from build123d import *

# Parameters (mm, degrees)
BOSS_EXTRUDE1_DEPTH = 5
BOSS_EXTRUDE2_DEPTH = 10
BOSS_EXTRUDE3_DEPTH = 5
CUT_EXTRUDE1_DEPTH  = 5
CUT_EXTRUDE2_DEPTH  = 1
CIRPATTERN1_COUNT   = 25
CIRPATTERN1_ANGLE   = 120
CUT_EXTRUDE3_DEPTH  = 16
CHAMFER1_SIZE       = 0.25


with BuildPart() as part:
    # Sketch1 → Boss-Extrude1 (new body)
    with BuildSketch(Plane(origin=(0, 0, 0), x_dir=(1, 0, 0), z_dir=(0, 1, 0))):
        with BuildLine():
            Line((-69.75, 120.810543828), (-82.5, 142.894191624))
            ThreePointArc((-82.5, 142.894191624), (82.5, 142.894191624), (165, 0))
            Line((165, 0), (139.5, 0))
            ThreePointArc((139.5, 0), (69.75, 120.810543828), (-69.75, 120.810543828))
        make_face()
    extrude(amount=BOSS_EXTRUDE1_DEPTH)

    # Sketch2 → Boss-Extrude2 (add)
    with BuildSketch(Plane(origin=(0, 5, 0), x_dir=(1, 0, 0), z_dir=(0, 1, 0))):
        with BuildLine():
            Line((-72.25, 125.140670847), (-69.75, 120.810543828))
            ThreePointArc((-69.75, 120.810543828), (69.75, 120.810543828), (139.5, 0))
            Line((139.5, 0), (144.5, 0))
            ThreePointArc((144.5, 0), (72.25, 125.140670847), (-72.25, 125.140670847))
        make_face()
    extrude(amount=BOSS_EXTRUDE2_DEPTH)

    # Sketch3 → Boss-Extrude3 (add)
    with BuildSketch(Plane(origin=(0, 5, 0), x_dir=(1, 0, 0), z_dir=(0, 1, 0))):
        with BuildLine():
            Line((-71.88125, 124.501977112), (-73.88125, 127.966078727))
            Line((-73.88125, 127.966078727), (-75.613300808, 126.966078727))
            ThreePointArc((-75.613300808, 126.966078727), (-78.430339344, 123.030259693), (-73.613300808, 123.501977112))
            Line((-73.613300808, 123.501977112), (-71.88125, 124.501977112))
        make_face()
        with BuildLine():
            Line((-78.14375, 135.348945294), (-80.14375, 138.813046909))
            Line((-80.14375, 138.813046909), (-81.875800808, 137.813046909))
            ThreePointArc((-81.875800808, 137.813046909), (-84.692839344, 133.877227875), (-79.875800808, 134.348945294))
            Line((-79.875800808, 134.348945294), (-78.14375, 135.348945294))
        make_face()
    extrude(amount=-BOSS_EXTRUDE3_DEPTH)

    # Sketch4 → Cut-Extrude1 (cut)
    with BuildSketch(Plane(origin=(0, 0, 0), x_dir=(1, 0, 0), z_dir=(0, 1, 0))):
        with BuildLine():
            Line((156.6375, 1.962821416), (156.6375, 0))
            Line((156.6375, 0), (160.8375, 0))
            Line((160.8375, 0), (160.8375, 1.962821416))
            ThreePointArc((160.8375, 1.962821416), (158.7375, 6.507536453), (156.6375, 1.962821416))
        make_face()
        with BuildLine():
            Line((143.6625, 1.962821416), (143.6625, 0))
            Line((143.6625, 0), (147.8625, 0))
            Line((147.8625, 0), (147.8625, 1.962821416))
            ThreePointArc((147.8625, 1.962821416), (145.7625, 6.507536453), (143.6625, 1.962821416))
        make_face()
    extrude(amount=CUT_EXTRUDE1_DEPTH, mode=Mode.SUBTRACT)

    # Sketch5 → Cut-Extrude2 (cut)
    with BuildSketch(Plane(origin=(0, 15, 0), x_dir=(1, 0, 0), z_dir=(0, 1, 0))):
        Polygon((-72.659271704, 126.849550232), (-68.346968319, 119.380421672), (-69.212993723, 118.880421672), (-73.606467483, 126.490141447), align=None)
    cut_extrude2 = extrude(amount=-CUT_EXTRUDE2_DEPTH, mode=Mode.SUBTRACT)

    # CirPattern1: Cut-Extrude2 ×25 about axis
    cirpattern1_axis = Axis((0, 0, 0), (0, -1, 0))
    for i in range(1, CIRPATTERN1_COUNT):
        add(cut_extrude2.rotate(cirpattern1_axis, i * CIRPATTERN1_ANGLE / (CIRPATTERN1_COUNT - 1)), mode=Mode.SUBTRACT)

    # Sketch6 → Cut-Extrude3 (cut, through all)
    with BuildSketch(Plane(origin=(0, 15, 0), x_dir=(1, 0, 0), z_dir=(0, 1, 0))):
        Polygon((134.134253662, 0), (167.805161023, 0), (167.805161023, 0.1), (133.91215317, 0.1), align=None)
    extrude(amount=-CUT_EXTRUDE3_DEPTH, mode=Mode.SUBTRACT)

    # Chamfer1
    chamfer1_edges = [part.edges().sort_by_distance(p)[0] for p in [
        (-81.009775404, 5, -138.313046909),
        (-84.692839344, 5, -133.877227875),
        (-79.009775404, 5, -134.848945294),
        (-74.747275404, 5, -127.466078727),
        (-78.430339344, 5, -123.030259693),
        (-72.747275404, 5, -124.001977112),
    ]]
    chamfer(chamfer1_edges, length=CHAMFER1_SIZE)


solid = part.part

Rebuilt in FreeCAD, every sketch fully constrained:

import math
import FreeCAD as App
import Part
import Sketcher
Q = App.Units.Quantity


def edges_at(feature, points):
    """Names of the edges that pass closest to the given points."""
    edges = feature.Shape.Edges
    near = lambda p: min(range(len(edges)), key=lambda i: edges[i].distToShape(Part.Vertex(*p))[0])
    return sorted({f"Edge{near(p) + 1}" for p in points})


def add_polygon(sketch, points):
    """Adds a closed chain of lines whose ends are joined by coincident constraints."""
    first, n = sketch.GeometryCount, len(points)
    for a, b in zip(points, points[1:] + points[:1]):
        sketch.addGeometry(Part.LineSegment(App.Vector(*a, 0), App.Vector(*b, 0)), False)
    for i in range(n):
        sketch.addConstraint(Sketcher.Constraint("Coincident", first + i, 2, first + (i + 1) % n, 1))

doc = App.newDocument("Part")
body = doc.addObject("PartDesign::Body", "Body")

sketch1 = body.newObject("Sketcher::SketchObject", "Sketch")
sketch1.AttachmentSupport = (doc.getObject("XZ_Plane"), [""])
sketch1.MapMode = "FlatFace"
sketch1.addGeometry(Part.LineSegment(App.Vector(-82, -143, 0), App.Vector(-70, -121, 0)), False)
sketch1.addGeometry(Part.ArcOfCircle(Part.Circle(App.Vector(0, 0, 0), App.Vector(0, 0, 1), 140), math.radians(-120), math.radians(0)), False)
sketch1.addGeometry(Part.LineSegment(App.Vector(140, 0, 0), App.Vector(165, 0, 0)), False)
sketch1.addGeometry(Part.ArcOfCircle(Part.Circle(App.Vector(0, 0, 0), App.Vector(0, 0, 1), 165), math.radians(-120), math.radians(0)), False)
sketch1.addConstraint(Sketcher.Constraint("Coincident", 0, 2, 1, 1))
sketch1.addConstraint(Sketcher.Constraint("Coincident", 1, 2, 2, 1))
sketch1.addConstraint(Sketcher.Constraint("Coincident", 2, 2, 3, 2))
sketch1.addConstraint(Sketcher.Constraint("Coincident", 3, 1, 0, 1))
sketch1.addConstraint(Sketcher.Constraint("Horizontal", 2))
sketch1.addConstraint(Sketcher.Constraint("Coincident", 1, 3, -1, 1))
sketch1.addConstraint(Sketcher.Constraint("Coincident", 3, 3, -1, 1))
sketch1.addConstraint(Sketcher.Constraint("PointOnObject", 1, 2, -1))
sketch1.addConstraint(Sketcher.Constraint("Radius", 3, Q("165 mm")))
sketch1.addConstraint(Sketcher.Constraint("Radius", 1, Q("139.5 mm")))
sketch1.addConstraint(Sketcher.Constraint("Angle", 0, Q("60 deg")))
sketch1.addConstraint(Sketcher.Constraint("DistanceX", 3, 1, 1, 2, Q("222 mm")))
pad1 = body.newObject("PartDesign::Pad", "Pad")
pad1.Profile = sketch1
pad1.Length = 5
pad1.Reversed = True

sketch2 = body.newObject("Sketcher::SketchObject", "Sketch001")
sketch2.AttachmentSupport = (doc.getObject("XZ_Plane"), [""])
sketch2.MapMode = "FlatFace"
sketch2.AttachmentOffset = App.Placement(App.Vector(0, 0, -5), App.Rotation())
sketch2.addGeometry(Part.LineSegment(App.Vector(-72, -125, 0), App.Vector(-70, -121, 0)), False)
sketch2.addGeometry(Part.ArcOfCircle(Part.Circle(App.Vector(0, 0, 0), App.Vector(0, 0, 1), 140), math.radians(-120), math.radians(0)), False)
sketch2.addGeometry(Part.LineSegment(App.Vector(140, 0, 0), App.Vector(144, 0, 0)), False)
sketch2.addGeometry(Part.ArcOfCircle(Part.Circle(App.Vector(0, 0, 0), App.Vector(0, 0, 1), 144), math.radians(-120), math.radians(0)), False)
sketch2.addConstraint(Sketcher.Constraint("Coincident", 0, 2, 1, 1))
sketch2.addConstraint(Sketcher.Constraint("Coincident", 1, 2, 2, 1))
sketch2.addConstraint(Sketcher.Constraint("Coincident", 2, 2, 3, 2))
sketch2.addConstraint(Sketcher.Constraint("Coincident", 3, 1, 0, 1))
sketch2.addConstraint(Sketcher.Constraint("Horizontal", 2))
sketch2.addConstraint(Sketcher.Constraint("Coincident", 1, 3, -1, 1))
sketch2.addConstraint(Sketcher.Constraint("Coincident", 3, 3, -1, 1))
sketch2.addConstraint(Sketcher.Constraint("PointOnObject", 1, 2, -1))
sketch2.addConstraint(Sketcher.Constraint("Radius", 1, Q("139.5 mm")))
sketch2.addConstraint(Sketcher.Constraint("Radius", 3, Q("144.5 mm")))
sketch2.addConstraint(Sketcher.Constraint("Angle", 0, Q("60 deg")))
sketch2.addConstraint(Sketcher.Constraint("DistanceX", 0, 2, -1, 1, Q("69.75 mm")))
pad2 = body.newObject("PartDesign::Pad", "Pad001")
pad2.Profile = sketch2
pad2.Length = 10
pad2.Reversed = True

sketch3 = body.newObject("Sketcher::SketchObject", "Sketch002")
sketch3.AttachmentSupport = (doc.getObject("XZ_Plane"), [""])
sketch3.MapMode = "FlatFace"
sketch3.AttachmentOffset = App.Placement(App.Vector(0, 0, -5), App.Rotation())
sketch3.addGeometry(Part.LineSegment(App.Vector(-71.9, -124.5, 0), App.Vector(-73.9, -128, 0)), False)
sketch3.addGeometry(Part.LineSegment(App.Vector(-73.9, -128, 0), App.Vector(-75.6, -127, 0)), False)
sketch3.addGeometry(Part.ArcOfCircle(Part.Circle(App.Vector(-76.1, -124.4, 0), App.Vector(0, 0, 1), 2.7), math.radians(19), math.radians(281)), False)
sketch3.addGeometry(Part.LineSegment(App.Vector(-73.6, -123.5, 0), App.Vector(-71.9, -124.5, 0)), False)
sketch3.addGeometry(Part.LineSegment(App.Vector(-78.1, -135.3, 0), App.Vector(-80.1, -138.8, 0)), False)
sketch3.addGeometry(Part.LineSegment(App.Vector(-80.1, -138.8, 0), App.Vector(-81.9, -137.8, 0)), False)
sketch3.addGeometry(Part.ArcOfCircle(Part.Circle(App.Vector(-82.4, -135.2, 0), App.Vector(0, 0, 1), 2.7), math.radians(19), math.radians(281)), False)
sketch3.addGeometry(Part.LineSegment(App.Vector(-79.9, -134.3, 0), App.Vector(-78.1, -135.3, 0)), False)
sketch3.addConstraint(Sketcher.Constraint("Coincident", 0, 2, 1, 1))
sketch3.addConstraint(Sketcher.Constraint("Coincident", 1, 2, 2, 2))
sketch3.addConstraint(Sketcher.Constraint("Coincident", 2, 1, 3, 1))
sketch3.addConstraint(Sketcher.Constraint("Coincident", 3, 2, 0, 1))
sketch3.addConstraint(Sketcher.Constraint("Coincident", 4, 2, 5, 1))
sketch3.addConstraint(Sketcher.Constraint("Coincident", 5, 2, 6, 2))
sketch3.addConstraint(Sketcher.Constraint("Coincident", 6, 1, 7, 1))
sketch3.addConstraint(Sketcher.Constraint("Coincident", 7, 2, 4, 1))
sketch3.addConstraint(Sketcher.Constraint("Equal", 2, 6))
sketch3.addConstraint(Sketcher.Constraint("Perpendicular", 0, 1))
sketch3.addConstraint(Sketcher.Constraint("Parallel", 1, 3))
sketch3.addConstraint(Sketcher.Constraint("Perpendicular", 3, 4))
sketch3.addConstraint(Sketcher.Constraint("Perpendicular", 4, 5))
sketch3.addConstraint(Sketcher.Constraint("Parallel", 5, 7))
sketch3.addConstraint(Sketcher.Constraint("Equal", 1, 3))
sketch3.addConstraint(Sketcher.Constraint("Equal", 0, 4))
sketch3.addConstraint(Sketcher.Constraint("Equal", 3, 5))
sketch3.addConstraint(Sketcher.Constraint("Equal", 5, 7))
sketch3.addConstraint(Sketcher.Constraint("Angle", 0, Q("-120 deg")))
sketch3.addConstraint(Sketcher.Constraint("Distance", 0, Q("4 mm")))
sketch3.addConstraint(Sketcher.Constraint("Distance", 1, Q("2 mm")))
sketch3.addConstraint(Sketcher.Constraint("Radius", 2, Q("2.657536 mm")))
sketch3.addConstraint(Sketcher.Constraint("DistanceX", 1, 2, -1, 1, Q("75.613301 mm")))
sketch3.addConstraint(Sketcher.Constraint("DistanceX", 5, 2, -1, 1, Q("81.875801 mm")))
sketch3.addConstraint(Sketcher.Constraint("DistanceY", 0, 2, -1, 1, Q("127.966079 mm")))
sketch3.addConstraint(Sketcher.Constraint("DistanceY", 6, 3, 2, 3, Q("10.846968 mm")))
pad3 = body.newObject("PartDesign::Pad", "Pad002")
pad3.Profile = sketch3
pad3.Length = 5

sketch4 = body.newObject("Sketcher::SketchObject", "Sketch003")
sketch4.AttachmentSupport = (doc.getObject("XZ_Plane"), [""])
sketch4.MapMode = "FlatFace"
sketch4.addGeometry(Part.LineSegment(App.Vector(156.6, -2, 0), App.Vector(156.6, 0, 0)), False)
sketch4.addGeometry(Part.LineSegment(App.Vector(156.6, 0, 0), App.Vector(160.8, 0, 0)), False)
sketch4.addGeometry(Part.LineSegment(App.Vector(160.8, 0, 0), App.Vector(160.8, -2, 0)), False)
sketch4.addGeometry(Part.ArcOfCircle(Part.Circle(App.Vector(158.7, -3.8, 0), App.Vector(0, 0, 1), 2.8), math.radians(140), math.radians(400)), False)
sketch4.addGeometry(Part.LineSegment(App.Vector(143.7, -2, 0), App.Vector(143.7, 0, 0)), False)
sketch4.addGeometry(Part.LineSegment(App.Vector(143.7, 0, 0), App.Vector(147.9, 0, 0)), False)
sketch4.addGeometry(Part.LineSegment(App.Vector(147.9, 0, 0), App.Vector(147.9, -2, 0)), False)
sketch4.addGeometry(Part.ArcOfCircle(Part.Circle(App.Vector(145.8, -3.8, 0), App.Vector(0, 0, 1), 2.8), math.radians(140), math.radians(400)), False)
sketch4.addConstraint(Sketcher.Constraint("Coincident", 0, 2, 1, 1))
sketch4.addConstraint(Sketcher.Constraint("Coincident", 1, 2, 2, 1))
sketch4.addConstraint(Sketcher.Constraint("Coincident", 2, 2, 3, 2))
sketch4.addConstraint(Sketcher.Constraint("Coincident", 3, 1, 0, 1))
sketch4.addConstraint(Sketcher.Constraint("Coincident", 4, 2, 5, 1))
sketch4.addConstraint(Sketcher.Constraint("Coincident", 5, 2, 6, 1))
sketch4.addConstraint(Sketcher.Constraint("Coincident", 6, 2, 7, 2))
sketch4.addConstraint(Sketcher.Constraint("Coincident", 7, 1, 4, 1))
sketch4.addConstraint(Sketcher.Constraint("Vertical", 0))
sketch4.addConstraint(Sketcher.Constraint("Horizontal", 1))
sketch4.addConstraint(Sketcher.Constraint("Vertical", 2))
sketch4.addConstraint(Sketcher.Constraint("Vertical", 4))
sketch4.addConstraint(Sketcher.Constraint("Horizontal", 5))
sketch4.addConstraint(Sketcher.Constraint("Vertical", 6))
sketch4.addConstraint(Sketcher.Constraint("Equal", 3, 7))
sketch4.addConstraint(Sketcher.Constraint("PointOnObject", 0, 2, -1))
sketch4.addConstraint(Sketcher.Constraint("PointOnObject", 4, 2, -1))
sketch4.addConstraint(Sketcher.Constraint("Horizontal", 3, 3, 7, 3))
sketch4.addConstraint(Sketcher.Constraint("Horizontal", 2, 2, 3, 1))
sketch4.addConstraint(Sketcher.Constraint("Horizontal", 3, 1, 6, 2))
sketch4.addConstraint(Sketcher.Constraint("Horizontal", 6, 2, 7, 1))
sketch4.addConstraint(Sketcher.Constraint("DistanceX", 1, 1, 1, 2, Q("4.2 mm")))
sketch4.addConstraint(Sketcher.Constraint("DistanceY", 3, 3, -1, 1, Q("3.75 mm")))
sketch4.addConstraint(Sketcher.Constraint("Radius", 3, Q("2.757536 mm")))
sketch4.addConstraint(Sketcher.Constraint("DistanceX", 7, 3, 3, 3, Q("12.975 mm")))
sketch4.addConstraint(Sketcher.Constraint("DistanceX", -1, 1, 3, 3, Q("158.7375 mm")))
pocket1 = body.newObject("PartDesign::Pocket", "Pocket")
pocket1.Profile = sketch4
pocket1.Length = 5

sketch5 = body.newObject("Sketcher::SketchObject", "Sketch004")
sketch5.AttachmentSupport = (doc.getObject("XZ_Plane"), [""])
sketch5.MapMode = "FlatFace"
sketch5.AttachmentOffset = App.Placement(App.Vector(0, 0, -15), App.Rotation())
add_polygon(sketch5, [(-68.3, -119.4), (-72.7, -126.8), (-73.6, -126.5), (-69.2, -118.9)])
sketch5.addConstraint(Sketcher.Constraint("Parallel", 0, 2))
sketch5.addConstraint(Sketcher.Constraint("Perpendicular", 2, 3))
sketch5.addConstraint(Sketcher.Constraint("Angle", 0, Q("-120 deg")))
sketch5.addConstraint(Sketcher.Constraint("Distance", 3, Q("1 mm")))
sketch5.addConstraint(Sketcher.Constraint("DistanceX", 1, 2, 3, 2, Q("5.259499 mm")))
sketch5.addConstraint(Sketcher.Constraint("Distance", 1, Q("1.013092 mm")))
sketch5.addConstraint(Sketcher.Constraint("DistanceX", 0, 2, -1, 1, Q("72.659272 mm")))
sketch5.addConstraint(Sketcher.Constraint("DistanceY", 0, 2, -1, 1, Q("126.84955 mm")))
pocket2 = body.newObject("PartDesign::Pocket", "Pocket001")
pocket2.Profile = sketch5
pocket2.Length = 1
pocket2.Reversed = True
doc.recompute()

polarpattern = body.newObject("PartDesign::PolarPattern", "PolarPattern")
polarpattern.Originals = [pocket2]
polarpattern.Axis = (doc.getObject("Y_Axis"), [""])
polarpattern.Angle = 120
polarpattern.Occurrences = 25
polarpattern.Reversed = True
body.Tip = polarpattern

sketch6 = body.newObject("Sketcher::SketchObject", "Sketch005")
sketch6.AttachmentSupport = (doc.getObject("XZ_Plane"), [""])
sketch6.MapMode = "FlatFace"
sketch6.AttachmentOffset = App.Placement(App.Vector(0, 0, -15), App.Rotation())
add_polygon(sketch6, [(134.13, 0), (167.81, 0), (167.81, -0.1), (133.91, -0.1)])
sketch6.addConstraint(Sketcher.Constraint("Horizontal", 0))
sketch6.addConstraint(Sketcher.Constraint("Vertical", 1))
sketch6.addConstraint(Sketcher.Constraint("Horizontal", 2))
sketch6.addConstraint(Sketcher.Constraint("PointOnObject", 0, 2, -1))
sketch6.addConstraint(Sketcher.Constraint("DistanceY", 1, 2, 1, 1, Q("0.1 mm")))
sketch6.addConstraint(Sketcher.Constraint("DistanceX", 2, 2, 3, 2, Q("0.2221 mm")))
sketch6.addConstraint(Sketcher.Constraint("DistanceX", 0, 1, 0, 2, Q("33.670907 mm")))
sketch6.addConstraint(Sketcher.Constraint("DistanceX", -1, 1, 0, 2, Q("167.805161 mm")))
pocket3 = body.newObject("PartDesign::Pocket", "Pocket002")
pocket3.Profile = sketch6
pocket3.Type = "ThroughAll"
pocket3.Reversed = True
doc.recompute()

chamfer = body.newObject("PartDesign::Chamfer", "Chamfer")
chamfer.Base = (pocket3, edges_at(pocket3, [
    (-81.01, 5, -138.313),
    (-84.693, 5, -133.877),
    (-79.01, 5, -134.849),
    (-74.747, 5, -127.466),
    (-78.43, 5, -123.03),
    (-72.747, 5, -124.002),
]))
chamfer.Size = 0.25

doc.recompute()
